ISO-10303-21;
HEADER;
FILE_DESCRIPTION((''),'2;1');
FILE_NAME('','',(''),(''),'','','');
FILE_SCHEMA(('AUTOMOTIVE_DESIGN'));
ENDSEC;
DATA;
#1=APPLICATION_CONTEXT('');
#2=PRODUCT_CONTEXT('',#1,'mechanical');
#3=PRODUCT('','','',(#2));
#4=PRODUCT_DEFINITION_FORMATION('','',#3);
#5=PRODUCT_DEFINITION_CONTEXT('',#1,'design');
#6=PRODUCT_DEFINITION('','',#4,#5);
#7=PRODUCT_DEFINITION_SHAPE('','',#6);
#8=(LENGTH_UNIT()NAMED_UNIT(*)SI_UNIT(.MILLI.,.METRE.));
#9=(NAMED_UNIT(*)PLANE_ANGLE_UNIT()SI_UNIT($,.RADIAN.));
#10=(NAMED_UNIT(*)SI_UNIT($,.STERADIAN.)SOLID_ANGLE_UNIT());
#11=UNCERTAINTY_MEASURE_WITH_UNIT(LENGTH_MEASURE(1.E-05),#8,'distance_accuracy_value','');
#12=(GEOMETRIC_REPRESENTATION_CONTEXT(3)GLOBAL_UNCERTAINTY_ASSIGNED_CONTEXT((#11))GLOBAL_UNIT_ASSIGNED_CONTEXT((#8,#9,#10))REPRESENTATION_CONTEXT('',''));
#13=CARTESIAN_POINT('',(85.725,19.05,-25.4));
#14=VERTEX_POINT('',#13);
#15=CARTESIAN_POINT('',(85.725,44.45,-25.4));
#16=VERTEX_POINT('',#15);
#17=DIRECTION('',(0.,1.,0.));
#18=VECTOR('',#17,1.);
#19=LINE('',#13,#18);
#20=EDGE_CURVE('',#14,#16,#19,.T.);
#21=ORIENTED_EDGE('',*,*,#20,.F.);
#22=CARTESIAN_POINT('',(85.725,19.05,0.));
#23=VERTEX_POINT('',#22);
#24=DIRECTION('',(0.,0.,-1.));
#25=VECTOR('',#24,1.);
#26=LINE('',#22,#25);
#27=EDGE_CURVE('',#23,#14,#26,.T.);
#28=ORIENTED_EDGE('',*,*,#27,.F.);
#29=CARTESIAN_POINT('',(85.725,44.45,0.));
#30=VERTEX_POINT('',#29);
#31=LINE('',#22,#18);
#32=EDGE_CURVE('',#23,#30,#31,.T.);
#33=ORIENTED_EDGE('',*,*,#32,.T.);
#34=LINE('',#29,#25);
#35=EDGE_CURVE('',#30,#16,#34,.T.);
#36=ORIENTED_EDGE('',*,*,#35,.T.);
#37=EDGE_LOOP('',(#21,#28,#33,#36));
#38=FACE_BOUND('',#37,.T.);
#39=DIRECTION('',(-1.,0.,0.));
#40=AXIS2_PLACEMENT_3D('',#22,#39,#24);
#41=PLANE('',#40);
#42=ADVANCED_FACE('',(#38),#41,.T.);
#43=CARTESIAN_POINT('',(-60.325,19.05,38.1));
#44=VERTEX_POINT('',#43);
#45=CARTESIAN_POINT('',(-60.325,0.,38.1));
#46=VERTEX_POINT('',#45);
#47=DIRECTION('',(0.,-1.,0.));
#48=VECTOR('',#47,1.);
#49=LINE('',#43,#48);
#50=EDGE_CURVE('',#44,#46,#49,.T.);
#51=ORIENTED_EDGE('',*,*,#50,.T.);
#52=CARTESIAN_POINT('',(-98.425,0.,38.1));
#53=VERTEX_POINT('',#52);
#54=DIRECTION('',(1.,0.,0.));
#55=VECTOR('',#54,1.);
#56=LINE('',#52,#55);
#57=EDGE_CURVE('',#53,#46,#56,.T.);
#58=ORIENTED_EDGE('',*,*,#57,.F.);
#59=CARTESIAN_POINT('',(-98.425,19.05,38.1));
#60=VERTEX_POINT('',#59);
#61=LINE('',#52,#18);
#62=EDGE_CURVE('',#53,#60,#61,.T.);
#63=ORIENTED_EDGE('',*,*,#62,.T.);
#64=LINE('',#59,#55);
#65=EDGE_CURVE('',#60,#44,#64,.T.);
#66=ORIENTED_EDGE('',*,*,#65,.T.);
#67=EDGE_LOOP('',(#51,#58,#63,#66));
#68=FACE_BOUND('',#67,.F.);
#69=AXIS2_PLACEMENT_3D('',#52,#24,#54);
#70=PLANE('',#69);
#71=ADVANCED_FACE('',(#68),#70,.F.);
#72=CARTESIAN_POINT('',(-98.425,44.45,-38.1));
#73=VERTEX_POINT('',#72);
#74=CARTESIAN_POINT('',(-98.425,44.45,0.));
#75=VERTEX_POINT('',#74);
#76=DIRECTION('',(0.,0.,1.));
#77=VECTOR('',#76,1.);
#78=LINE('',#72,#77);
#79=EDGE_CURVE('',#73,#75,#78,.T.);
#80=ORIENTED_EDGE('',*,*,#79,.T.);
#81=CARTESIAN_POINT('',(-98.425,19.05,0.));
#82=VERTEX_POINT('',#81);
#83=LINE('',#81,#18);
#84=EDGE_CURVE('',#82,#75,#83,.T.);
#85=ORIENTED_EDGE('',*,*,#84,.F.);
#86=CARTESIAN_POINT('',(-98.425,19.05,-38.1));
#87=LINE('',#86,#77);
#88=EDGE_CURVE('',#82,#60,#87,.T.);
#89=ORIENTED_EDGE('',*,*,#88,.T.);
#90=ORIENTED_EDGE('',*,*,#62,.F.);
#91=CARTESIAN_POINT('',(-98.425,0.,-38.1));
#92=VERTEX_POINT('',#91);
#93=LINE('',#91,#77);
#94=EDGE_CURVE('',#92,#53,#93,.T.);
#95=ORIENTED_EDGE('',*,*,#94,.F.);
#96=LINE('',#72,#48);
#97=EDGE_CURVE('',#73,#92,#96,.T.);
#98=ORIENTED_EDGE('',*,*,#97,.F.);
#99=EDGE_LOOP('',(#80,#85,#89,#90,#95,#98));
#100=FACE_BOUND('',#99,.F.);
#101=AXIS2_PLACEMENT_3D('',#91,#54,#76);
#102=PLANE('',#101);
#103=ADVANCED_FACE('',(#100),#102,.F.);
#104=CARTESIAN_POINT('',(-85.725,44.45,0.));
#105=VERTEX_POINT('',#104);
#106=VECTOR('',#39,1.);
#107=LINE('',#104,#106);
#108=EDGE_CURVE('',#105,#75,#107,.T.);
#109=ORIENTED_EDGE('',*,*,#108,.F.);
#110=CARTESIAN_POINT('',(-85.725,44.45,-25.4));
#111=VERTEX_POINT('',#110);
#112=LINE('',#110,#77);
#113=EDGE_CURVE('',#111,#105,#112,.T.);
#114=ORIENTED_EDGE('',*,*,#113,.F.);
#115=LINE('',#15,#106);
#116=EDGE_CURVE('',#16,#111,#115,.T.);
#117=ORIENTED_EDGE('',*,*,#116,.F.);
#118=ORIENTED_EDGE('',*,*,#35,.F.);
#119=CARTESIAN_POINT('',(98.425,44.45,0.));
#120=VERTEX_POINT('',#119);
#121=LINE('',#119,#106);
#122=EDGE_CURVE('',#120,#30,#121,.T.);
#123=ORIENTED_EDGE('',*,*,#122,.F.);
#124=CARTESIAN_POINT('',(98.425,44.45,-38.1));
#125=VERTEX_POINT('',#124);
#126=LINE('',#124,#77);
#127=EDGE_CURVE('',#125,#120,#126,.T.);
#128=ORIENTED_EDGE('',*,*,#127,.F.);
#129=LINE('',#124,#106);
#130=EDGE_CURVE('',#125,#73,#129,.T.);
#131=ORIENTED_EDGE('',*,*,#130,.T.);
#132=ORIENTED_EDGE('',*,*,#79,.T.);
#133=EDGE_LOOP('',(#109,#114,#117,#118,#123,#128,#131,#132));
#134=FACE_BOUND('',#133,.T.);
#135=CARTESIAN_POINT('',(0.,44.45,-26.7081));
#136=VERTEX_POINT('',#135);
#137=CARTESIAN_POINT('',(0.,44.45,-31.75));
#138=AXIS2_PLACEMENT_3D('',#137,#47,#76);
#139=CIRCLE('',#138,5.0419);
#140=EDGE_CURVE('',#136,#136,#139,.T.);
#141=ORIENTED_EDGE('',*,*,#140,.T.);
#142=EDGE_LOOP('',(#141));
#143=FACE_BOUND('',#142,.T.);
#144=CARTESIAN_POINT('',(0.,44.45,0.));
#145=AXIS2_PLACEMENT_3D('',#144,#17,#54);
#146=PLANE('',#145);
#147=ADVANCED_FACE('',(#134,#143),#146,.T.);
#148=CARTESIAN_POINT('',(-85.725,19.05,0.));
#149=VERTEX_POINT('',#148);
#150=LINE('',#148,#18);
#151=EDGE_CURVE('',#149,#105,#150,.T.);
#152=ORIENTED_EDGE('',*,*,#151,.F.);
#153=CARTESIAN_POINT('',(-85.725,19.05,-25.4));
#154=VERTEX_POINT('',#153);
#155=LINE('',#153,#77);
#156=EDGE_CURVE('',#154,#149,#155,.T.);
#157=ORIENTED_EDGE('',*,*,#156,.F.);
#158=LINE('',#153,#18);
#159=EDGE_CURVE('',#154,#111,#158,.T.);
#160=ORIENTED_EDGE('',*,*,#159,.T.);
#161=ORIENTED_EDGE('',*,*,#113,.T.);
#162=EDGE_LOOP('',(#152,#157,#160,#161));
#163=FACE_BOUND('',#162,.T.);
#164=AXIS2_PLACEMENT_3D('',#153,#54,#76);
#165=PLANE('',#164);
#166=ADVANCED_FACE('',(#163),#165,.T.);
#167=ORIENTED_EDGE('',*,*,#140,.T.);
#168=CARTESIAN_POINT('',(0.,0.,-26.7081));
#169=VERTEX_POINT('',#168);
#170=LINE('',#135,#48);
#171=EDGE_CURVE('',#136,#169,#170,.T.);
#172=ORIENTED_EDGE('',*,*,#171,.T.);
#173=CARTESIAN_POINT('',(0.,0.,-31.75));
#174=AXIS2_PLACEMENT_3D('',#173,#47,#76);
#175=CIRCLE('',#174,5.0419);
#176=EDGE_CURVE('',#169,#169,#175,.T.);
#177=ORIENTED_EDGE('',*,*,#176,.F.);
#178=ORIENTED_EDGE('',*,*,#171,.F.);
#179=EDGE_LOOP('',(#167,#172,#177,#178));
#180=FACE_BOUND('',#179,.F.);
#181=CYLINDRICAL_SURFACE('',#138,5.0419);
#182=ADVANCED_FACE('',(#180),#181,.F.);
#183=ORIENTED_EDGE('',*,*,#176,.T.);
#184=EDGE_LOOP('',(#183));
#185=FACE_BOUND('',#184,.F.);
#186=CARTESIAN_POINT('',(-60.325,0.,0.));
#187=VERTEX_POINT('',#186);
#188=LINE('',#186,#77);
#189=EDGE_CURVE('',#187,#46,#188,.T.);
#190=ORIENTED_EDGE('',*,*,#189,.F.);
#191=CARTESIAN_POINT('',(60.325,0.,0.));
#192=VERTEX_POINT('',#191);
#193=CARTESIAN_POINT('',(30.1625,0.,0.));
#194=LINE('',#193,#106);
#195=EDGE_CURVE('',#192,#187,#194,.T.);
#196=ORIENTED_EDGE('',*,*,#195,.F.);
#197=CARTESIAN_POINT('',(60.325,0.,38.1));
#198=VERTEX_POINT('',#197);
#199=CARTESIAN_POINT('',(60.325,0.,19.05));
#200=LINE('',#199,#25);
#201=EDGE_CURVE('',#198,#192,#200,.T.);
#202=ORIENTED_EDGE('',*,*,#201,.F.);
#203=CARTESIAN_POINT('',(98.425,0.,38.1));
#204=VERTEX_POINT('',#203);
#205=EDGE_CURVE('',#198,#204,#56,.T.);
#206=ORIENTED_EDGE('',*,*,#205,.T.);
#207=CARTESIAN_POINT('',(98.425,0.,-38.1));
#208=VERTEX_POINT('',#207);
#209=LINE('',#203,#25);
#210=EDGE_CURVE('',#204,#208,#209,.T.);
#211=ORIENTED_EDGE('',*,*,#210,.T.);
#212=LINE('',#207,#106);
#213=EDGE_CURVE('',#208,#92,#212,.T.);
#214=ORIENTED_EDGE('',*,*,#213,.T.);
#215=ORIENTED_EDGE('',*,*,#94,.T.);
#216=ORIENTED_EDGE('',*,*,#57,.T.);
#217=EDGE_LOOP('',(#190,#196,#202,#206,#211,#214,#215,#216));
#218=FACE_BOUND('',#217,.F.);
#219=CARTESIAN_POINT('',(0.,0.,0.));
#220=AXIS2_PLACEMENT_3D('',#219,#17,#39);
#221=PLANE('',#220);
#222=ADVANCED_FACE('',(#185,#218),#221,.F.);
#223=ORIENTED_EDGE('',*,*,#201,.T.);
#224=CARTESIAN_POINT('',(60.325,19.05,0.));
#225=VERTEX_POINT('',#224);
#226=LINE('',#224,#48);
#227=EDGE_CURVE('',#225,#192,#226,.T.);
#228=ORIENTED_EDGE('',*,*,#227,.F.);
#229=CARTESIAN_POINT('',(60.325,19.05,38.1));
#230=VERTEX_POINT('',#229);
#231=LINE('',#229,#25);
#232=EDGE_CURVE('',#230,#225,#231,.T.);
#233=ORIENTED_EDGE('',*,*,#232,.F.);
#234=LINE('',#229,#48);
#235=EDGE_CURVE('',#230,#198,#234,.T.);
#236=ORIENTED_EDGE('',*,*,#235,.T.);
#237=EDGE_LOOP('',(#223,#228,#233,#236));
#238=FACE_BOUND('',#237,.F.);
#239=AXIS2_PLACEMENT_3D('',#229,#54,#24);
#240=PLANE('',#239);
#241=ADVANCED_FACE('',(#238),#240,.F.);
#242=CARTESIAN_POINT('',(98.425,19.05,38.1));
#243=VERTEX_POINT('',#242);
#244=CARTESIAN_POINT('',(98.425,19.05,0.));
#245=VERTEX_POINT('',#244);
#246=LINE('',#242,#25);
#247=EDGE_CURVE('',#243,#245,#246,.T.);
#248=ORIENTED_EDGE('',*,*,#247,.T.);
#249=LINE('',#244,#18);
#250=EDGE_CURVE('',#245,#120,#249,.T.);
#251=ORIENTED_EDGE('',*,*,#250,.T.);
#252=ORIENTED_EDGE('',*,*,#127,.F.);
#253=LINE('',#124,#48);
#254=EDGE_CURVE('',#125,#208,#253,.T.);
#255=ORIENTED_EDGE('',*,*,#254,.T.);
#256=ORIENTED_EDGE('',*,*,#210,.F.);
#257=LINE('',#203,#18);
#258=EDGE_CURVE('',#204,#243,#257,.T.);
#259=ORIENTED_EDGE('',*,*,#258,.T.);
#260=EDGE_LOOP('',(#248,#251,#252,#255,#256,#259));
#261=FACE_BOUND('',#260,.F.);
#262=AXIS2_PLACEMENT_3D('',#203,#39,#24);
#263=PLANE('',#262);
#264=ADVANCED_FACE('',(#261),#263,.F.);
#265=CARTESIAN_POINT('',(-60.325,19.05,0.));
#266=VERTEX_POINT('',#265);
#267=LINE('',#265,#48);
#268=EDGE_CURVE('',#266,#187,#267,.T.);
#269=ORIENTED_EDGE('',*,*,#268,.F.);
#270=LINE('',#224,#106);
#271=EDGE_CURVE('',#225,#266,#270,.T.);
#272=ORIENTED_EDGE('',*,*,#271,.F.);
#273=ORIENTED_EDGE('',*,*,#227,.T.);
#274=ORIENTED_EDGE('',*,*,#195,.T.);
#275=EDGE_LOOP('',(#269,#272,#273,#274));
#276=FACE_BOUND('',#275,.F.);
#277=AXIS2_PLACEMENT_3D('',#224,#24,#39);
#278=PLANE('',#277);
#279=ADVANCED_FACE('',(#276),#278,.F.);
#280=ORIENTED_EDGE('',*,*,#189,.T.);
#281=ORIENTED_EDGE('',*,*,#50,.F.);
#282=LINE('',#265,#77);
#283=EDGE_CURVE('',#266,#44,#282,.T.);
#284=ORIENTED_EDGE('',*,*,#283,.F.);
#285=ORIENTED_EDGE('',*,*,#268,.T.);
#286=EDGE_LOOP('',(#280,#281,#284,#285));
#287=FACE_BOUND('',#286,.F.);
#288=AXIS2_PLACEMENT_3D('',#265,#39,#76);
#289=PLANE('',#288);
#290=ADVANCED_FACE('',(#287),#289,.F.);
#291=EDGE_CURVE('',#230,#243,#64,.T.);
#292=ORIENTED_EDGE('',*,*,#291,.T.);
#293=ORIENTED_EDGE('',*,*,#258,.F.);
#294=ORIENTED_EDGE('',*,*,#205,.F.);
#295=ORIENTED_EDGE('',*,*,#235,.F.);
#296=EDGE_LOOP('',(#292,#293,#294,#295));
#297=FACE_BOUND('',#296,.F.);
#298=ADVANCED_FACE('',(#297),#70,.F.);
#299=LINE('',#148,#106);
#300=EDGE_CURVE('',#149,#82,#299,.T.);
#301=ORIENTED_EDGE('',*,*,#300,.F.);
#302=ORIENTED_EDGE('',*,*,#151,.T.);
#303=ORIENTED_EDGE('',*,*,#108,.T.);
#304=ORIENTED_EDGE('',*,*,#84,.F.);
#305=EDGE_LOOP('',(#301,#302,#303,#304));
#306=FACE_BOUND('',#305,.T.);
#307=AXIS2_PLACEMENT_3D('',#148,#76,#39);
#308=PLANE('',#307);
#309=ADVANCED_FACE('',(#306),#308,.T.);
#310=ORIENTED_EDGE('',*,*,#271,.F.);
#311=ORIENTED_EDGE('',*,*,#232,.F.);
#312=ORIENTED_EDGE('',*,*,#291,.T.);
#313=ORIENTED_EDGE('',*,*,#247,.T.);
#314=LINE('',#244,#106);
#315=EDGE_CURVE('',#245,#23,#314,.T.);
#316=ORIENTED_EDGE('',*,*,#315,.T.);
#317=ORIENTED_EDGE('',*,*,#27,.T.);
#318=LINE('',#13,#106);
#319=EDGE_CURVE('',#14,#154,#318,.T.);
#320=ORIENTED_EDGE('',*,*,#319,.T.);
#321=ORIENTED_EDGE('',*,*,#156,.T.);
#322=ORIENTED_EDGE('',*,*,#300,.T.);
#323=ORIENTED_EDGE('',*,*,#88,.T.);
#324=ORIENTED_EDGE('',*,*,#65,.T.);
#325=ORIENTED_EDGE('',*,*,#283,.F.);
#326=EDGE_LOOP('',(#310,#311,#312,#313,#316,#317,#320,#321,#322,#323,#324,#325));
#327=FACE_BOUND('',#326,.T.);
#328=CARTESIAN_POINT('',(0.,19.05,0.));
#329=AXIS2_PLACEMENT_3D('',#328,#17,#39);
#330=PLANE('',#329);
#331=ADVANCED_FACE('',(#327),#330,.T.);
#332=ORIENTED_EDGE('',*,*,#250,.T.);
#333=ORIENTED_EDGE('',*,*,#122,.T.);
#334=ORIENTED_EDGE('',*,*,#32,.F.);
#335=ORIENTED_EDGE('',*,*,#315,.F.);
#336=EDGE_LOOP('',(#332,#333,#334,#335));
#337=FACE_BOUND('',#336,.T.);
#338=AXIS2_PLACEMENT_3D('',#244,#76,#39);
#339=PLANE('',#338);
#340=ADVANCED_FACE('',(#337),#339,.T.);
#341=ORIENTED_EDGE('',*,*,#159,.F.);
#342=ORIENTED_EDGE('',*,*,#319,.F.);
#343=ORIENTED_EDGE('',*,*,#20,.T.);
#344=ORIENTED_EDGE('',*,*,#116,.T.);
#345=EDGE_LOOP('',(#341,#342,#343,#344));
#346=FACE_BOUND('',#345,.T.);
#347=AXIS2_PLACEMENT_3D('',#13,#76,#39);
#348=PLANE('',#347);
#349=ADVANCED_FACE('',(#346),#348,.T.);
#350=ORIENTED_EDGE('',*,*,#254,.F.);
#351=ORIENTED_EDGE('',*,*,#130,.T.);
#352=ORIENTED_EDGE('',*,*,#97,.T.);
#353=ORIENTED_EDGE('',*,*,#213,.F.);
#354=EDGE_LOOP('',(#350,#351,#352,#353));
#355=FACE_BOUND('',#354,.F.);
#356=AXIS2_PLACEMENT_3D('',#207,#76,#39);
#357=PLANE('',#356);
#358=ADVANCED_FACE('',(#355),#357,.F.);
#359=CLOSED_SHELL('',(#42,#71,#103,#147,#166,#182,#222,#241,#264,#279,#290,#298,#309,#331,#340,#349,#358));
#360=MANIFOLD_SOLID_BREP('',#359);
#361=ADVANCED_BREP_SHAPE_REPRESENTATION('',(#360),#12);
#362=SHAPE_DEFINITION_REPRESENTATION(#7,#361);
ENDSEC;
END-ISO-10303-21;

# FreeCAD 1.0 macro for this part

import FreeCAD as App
import Part
import Sketcher
Q = App.Units.Quantity


def add_polygon(sketch, points):
    """Adds a closed chain of lines whose ends are joined by coincident constraints."""
    first, n = sketch.GeometryCount, len(points)
    for a, b in zip(points, points[1:] + points[:1]):
        sketch.addGeometry(Part.LineSegment(App.Vector(*a, 0), App.Vector(*b, 0)), False)
    for i in range(n):
        sketch.addConstraint(Sketcher.Constraint("Coincident", first + i, 2, first + (i + 1) % n, 1))

doc = App.newDocument("Part")
body = doc.addObject("PartDesign::Body", "Body")

# Sketch on XZ plane
sketch1 = body.newObject("Sketcher::SketchObject", "Sketch")
sketch1.AttachmentSupport = (doc.getObject("XZ_Plane"), [""])
sketch1.MapMode = "FlatFace"
add_polygon(sketch1, [(-98, -38), (-98, 38), (98, 38), (98, -38)])  # lines 0-3
sketch1.addConstraint([
    Sketcher.Constraint("Vertical", 0),
    Sketcher.Constraint("Horizontal", 1),
    Sketcher.Constraint("Vertical", 2),
    Sketcher.Constraint("Horizontal", 3),
    Sketcher.Constraint("Symmetric", 0, 2, 2, 2, -1, 1),
    Sketcher.Constraint("DistanceY", 0, 1, 0, 2, Q("3 in")),
    Sketcher.Constraint("DistanceX", 1, 1, 1, 2, Q("7.75 in")),
])
pad1 = body.newObject("PartDesign::Pad", "Pad")
pad1.Profile = sketch1
pad1.Length = Q("0.75 in")
pad1.Reversed = True

# Sketch on XZ plane
sketch2 = body.newObject("Sketcher::SketchObject", "Sketch001")
sketch2.AttachmentSupport = (doc.getObject("XZ_Plane"), [""])
sketch2.MapMode = "FlatFace"
sketch2.AttachmentOffset = App.Placement(App.Vector(0, 0, -0.75 * 25.4), App.Rotation())
add_polygon(sketch2, [(98, 0), (98, -38), (-98, -38), (-98, 0), (-86, 0), (-86, -25), (86, -25), (86, 0)])  # lines 0-7
sketch2.addConstraint([
    Sketcher.Constraint("Vertical", 0),
    Sketcher.Constraint("Horizontal", 1),
    Sketcher.Constraint("Vertical", 2),
    Sketcher.Constraint("Horizontal", 3),
    Sketcher.Constraint("Vertical", 4),
    Sketcher.Constraint("Horizontal", 5),
    Sketcher.Constraint("Vertical", 6),
    Sketcher.Constraint("Horizontal", 7),
    Sketcher.Constraint("Symmetric", 3, 2, 6, 2, -1, 1),
    Sketcher.Constraint("Symmetric", 2, 2, 7, 2, -2),
    Sketcher.Constraint("DistanceY", 4, 2, 4, 1, Q("1 in")),
    Sketcher.Constraint("DistanceX", 3, 1, 3, 2, Q("0.5 in")),
    Sketcher.Constraint("DistanceY", 0, 2, 0, 1, Q("1.5 in")),
    Sketcher.Constraint("DistanceX", 1, 2, 1, 1, Q("7.75 in")),
])
pad2 = body.newObject("PartDesign::Pad", "Pad001")
pad2.Profile = sketch2
pad2.Length = Q("1 in")
pad2.Reversed = True

# Sketch on XZ plane
sketch3 = body.newObject("Sketcher::SketchObject", "Sketch002")
sketch3.AttachmentSupport = (doc.getObject("XZ_Plane"), [""])
sketch3.MapMode = "FlatFace"
sketch3.AttachmentOffset = App.Placement(App.Vector(0, 0, -1.75 * 25.4), App.Rotation())
sketch3.addGeometry(Part.Circle(App.Vector(0, -32, 0), App.Vector(0, 0, 1), 5), False)
sketch3.addConstraint([
    Sketcher.Constraint("PointOnObject", 0, 3, -2),
    Sketcher.Constraint("Diameter", 0, Q("0.397 in")),
    Sketcher.Constraint("DistanceY", 0, 3, -1, 1, Q("1.25 in")),
])
doc.recompute()
hole = body.newObject("PartDesign::Hole", "Hole")
hole.Profile = sketch3
hole.ThreadType = "None"
hole.Diameter = Q("0.397 in")
hole.DepthType = "ThroughAll"
hole.Reversed = True

# Sketch on XZ plane
sketch4 = body.newObject("Sketcher::SketchObject", "Sketch003")
sketch4.AttachmentSupport = (doc.getObject("XZ_Plane"), [""])
sketch4.MapMode = "FlatFace"
sketch4.AttachmentOffset = App.Placement(App.Vector(0, 0, -0.75 * 25.4), App.Rotation())
add_polygon(sketch4, [(-60, 0), (-60, 38), (60, 38), (60, 0)])  # lines 0-3
sketch4.addConstraint([
    Sketcher.Constraint("Vertical", 0),
    Sketcher.Constraint("Horizontal", 1),
    Sketcher.Constraint("Vertical", 2),
    Sketcher.Constraint("Horizontal", 3),
    Sketcher.Constraint("Symmetric", 2, 2, 3, 2, -1, 1),
    Sketcher.Constraint("DistanceY", 0, 1, 0, 2, Q("1.5 in")),
    Sketcher.Constraint("DistanceX", 1, 1, 1, 2, Q("4.75 in")),
])
pocket1 = body.newObject("PartDesign::Pocket", "Pocket")
pocket1.Profile = sketch4
pocket1.Type = "ThroughAll"
pocket1.Reversed = True

doc.recompute()
